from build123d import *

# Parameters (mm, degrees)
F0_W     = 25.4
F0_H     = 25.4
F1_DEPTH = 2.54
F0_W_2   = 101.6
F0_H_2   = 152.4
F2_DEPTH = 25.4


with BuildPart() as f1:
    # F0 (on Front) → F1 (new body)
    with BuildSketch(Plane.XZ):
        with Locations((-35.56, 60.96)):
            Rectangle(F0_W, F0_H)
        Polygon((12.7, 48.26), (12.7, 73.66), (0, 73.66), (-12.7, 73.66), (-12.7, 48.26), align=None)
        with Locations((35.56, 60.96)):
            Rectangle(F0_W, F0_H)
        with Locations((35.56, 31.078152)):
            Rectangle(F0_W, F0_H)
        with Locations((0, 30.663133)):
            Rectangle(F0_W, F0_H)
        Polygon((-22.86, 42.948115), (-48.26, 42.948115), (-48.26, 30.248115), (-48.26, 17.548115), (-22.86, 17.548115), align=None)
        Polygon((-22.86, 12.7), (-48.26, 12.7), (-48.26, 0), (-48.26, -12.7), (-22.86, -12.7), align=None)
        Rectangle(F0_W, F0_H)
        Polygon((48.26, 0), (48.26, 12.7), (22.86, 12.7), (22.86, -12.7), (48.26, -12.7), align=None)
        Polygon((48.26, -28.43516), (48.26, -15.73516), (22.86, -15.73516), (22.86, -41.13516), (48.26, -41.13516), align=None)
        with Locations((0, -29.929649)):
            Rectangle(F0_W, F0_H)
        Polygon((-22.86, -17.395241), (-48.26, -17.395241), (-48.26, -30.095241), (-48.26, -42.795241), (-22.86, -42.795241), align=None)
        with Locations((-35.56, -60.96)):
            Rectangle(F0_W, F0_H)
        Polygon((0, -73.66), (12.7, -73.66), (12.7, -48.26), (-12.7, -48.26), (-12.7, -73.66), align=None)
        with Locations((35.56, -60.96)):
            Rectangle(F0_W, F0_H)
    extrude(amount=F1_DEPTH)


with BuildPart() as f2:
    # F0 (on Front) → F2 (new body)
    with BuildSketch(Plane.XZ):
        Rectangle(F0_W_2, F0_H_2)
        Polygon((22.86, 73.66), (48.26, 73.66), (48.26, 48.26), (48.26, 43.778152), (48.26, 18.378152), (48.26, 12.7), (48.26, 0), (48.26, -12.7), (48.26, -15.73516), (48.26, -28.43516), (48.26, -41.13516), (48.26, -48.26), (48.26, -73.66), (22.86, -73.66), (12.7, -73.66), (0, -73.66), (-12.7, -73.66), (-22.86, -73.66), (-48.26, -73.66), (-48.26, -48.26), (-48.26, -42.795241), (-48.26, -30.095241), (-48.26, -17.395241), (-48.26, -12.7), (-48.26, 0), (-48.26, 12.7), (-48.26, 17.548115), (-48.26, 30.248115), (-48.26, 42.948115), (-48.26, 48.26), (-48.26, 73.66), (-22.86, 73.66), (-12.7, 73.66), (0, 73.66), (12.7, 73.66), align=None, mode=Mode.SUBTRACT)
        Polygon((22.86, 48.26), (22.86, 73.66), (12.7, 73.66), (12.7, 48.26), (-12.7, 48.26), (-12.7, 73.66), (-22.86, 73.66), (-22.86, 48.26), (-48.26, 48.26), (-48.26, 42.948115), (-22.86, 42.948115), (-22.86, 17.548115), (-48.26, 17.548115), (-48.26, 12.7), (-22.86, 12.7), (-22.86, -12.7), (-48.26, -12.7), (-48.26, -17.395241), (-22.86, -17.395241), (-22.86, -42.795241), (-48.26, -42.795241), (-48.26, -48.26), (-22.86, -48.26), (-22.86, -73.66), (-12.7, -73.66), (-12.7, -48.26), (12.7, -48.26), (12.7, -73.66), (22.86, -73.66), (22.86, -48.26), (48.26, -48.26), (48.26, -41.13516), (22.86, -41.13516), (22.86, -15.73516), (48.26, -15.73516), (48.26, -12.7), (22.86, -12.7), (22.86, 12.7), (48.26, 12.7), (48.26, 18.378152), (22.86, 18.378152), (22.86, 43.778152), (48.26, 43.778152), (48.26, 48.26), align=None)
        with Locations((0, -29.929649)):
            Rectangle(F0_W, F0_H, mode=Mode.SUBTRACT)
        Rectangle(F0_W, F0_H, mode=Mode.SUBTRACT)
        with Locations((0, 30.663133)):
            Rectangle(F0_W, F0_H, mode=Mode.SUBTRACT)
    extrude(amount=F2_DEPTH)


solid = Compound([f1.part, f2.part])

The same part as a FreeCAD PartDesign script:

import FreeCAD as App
import Part
import Sketcher

V = App.Vector
Q = App.Units.Quantity

doc = App.newDocument("Part")
params = doc.addObject("Spreadsheet::Sheet", "Params")
for row, (alias, value) in enumerate([
    ("sketch1_width", "1 in"),
    ("pad1_length", "0.1 in"),
    ("sketch2_width", "4 in"),
    ("sketch2_width2", "1 in"),
    ("sketch2_height", "6 in"),
    ("pad2_length", "1 in"),
], start=1):
    params.set(f"A{row}", alias)
    params.set(f"B{row}", "=" + value)
    params.setAlias(f"B{row}", alias)

body = doc.addObject("PartDesign::Body", "Body")
body.AllowCompound = True

# Sketch on XZ plane
sketch1 = body.newObject("Sketcher::SketchObject", "Sketch")
sketch1.AttachmentSupport = (doc.getObject("XZ_Plane"), [""])
sketch1.MapMode = "FlatFace"
sketch1.addGeometry([
    Part.LineSegment(V(-48.26, 73.66, 0), V(-48.26, 48.26, 0)),  # 0
    Part.LineSegment(V(-48.26, 48.26, 0), V(-22.86, 48.26, 0)),  # 1
    Part.LineSegment(V(-22.86, 48.26, 0), V(-22.86, 73.66, 0)),  # 2
    Part.LineSegment(V(-22.86, 73.66, 0), V(-48.26, 73.66, 0)),  # 3
    Part.LineSegment(V(12.7, 48.26, 0), V(12.7, 73.66, 0)),  # 4
    Part.LineSegment(V(12.7, 73.66, 0), V(-12.7, 73.66, 0)),  # 5
    Part.LineSegment(V(-12.7, 73.66, 0), V(-12.7, 48.26, 0)),  # 6
    Part.LineSegment(V(-12.7, 48.26, 0), V(12.7, 48.26, 0)),  # 7
    Part.LineSegment(V(22.86, 73.66, 0), V(22.86, 48.26, 0)),  # 8
    Part.LineSegment(V(22.86, 48.26, 0), V(48.26, 48.26, 0)),  # 9
    Part.LineSegment(V(48.26, 48.26, 0), V(48.26, 73.66, 0)),  # 10
    Part.LineSegment(V(48.26, 73.66, 0), V(22.86, 73.66, 0)),  # 11
    Part.LineSegment(V(22.86, 43.778152, 0), V(22.86, 18.378152, 0)),  # 12
    Part.LineSegment(V(22.86, 18.378152, 0), V(48.26, 18.378152, 0)),  # 13
    Part.LineSegment(V(48.26, 18.378152, 0), V(48.26, 43.778152, 0)),  # 14
    Part.LineSegment(V(48.26, 43.778152, 0), V(22.86, 43.778152, 0)),  # 15
    Part.LineSegment(V(-12.7, 43.363133, 0), V(-12.7, 17.963133, 0)),  # 16
    Part.LineSegment(V(-12.7, 17.963133, 0), V(12.7, 17.963133, 0)),  # 17
    Part.LineSegment(V(12.7, 17.963133, 0), V(12.7, 43.363133, 0)),  # 18
    Part.LineSegment(V(12.7, 43.363133, 0), V(-12.7, 43.363133, 0)),  # 19
    Part.LineSegment(V(-22.86, 42.948115, 0), V(-48.26, 42.948115, 0)),  # 20
    Part.LineSegment(V(-48.26, 42.948115, 0), V(-48.26, 17.548115, 0)),  # 21
    Part.LineSegment(V(-48.26, 17.548115, 0), V(-22.86, 17.548115, 0)),  # 22
    Part.LineSegment(V(-22.86, 17.548115, 0), V(-22.86, 42.948115, 0)),  # 23
    Part.LineSegment(V(-22.86, 12.7, 0), V(-48.26, 12.7, 0)),  # 24
    Part.LineSegment(V(-48.26, 12.7, 0), V(-48.26, -12.7, 0)),  # 25
    Part.LineSegment(V(-48.26, -12.7, 0), V(-22.86, -12.7, 0)),  # 26
    Part.LineSegment(V(-22.86, -12.7, 0), V(-22.86, 12.7, 0)),  # 27
    Part.LineSegment(V(-12.7, 12.7, 0), V(-12.7, -12.7, 0)),  # 28
    Part.LineSegment(V(-12.7, -12.7, 0), V(12.7, -12.7, 0)),  # 29
    Part.LineSegment(V(12.7, -12.7, 0), V(12.7, 12.7, 0)),  # 30
    Part.LineSegment(V(12.7, 12.7, 0), V(-12.7, 12.7, 0)),  # 31
    Part.LineSegment(V(48.26, 12.7, 0), V(22.86, 12.7, 0)),  # 32
    Part.LineSegment(V(22.86, 12.7, 0), V(22.86, -12.7, 0)),  # 33
    Part.LineSegment(V(22.86, -12.7, 0), V(48.26, -12.7, 0)),  # 34
    Part.LineSegment(V(48.26, -12.7, 0), V(48.26, 12.7, 0)),  # 35
    Part.LineSegment(V(48.26, -15.73516, 0), V(22.86, -15.73516, 0)),  # 36
    Part.LineSegment(V(22.86, -15.73516, 0), V(22.86, -41.13516, 0)),  # 37
    Part.LineSegment(V(22.86, -41.13516, 0), V(48.26, -41.13516, 0)),  # 38
    Part.LineSegment(V(48.26, -41.13516, 0), V(48.26, -15.73516, 0)),  # 39
    Part.LineSegment(V(-12.7, -17.229649, 0), V(-12.7, -42.629649, 0)),  # 40
    Part.LineSegment(V(-12.7, -42.629649, 0), V(12.7, -42.629649, 0)),  # 41
    Part.LineSegment(V(12.7, -42.629649, 0), V(12.7, -17.229649, 0)),  # 42
    Part.LineSegment(V(12.7, -17.229649, 0), V(-12.7, -17.229649, 0)),  # 43
    Part.LineSegment(V(-22.86, -17.395241, 0), V(-48.26, -17.395241, 0)),  # 44
    Part.LineSegment(V(-48.26, -17.395241, 0), V(-48.26, -42.795241, 0)),  # 45
    Part.LineSegment(V(-48.26, -42.795241, 0), V(-22.86, -42.795241, 0)),  # 46
    Part.LineSegment(V(-22.86, -42.795241, 0), V(-22.86, -17.395241, 0)),  # 47
    Part.LineSegment(V(-48.26, -48.26, 0), V(-48.26, -73.66, 0)),  # 48
    Part.LineSegment(V(-48.26, -73.66, 0), V(-22.86, -73.66, 0)),  # 49
    Part.LineSegment(V(-22.86, -73.66, 0), V(-22.86, -48.26, 0)),  # 50
    Part.LineSegment(V(-22.86, -48.26, 0), V(-48.26, -48.26, 0)),  # 51
    Part.LineSegment(V(12.7, -73.66, 0), V(12.7, -48.26, 0)),  # 52
    Part.LineSegment(V(12.7, -48.26, 0), V(-12.7, -48.26, 0)),  # 53
    Part.LineSegment(V(-12.7, -48.26, 0), V(-12.7, -73.66, 0)),  # 54
    Part.LineSegment(V(-12.7, -73.66, 0), V(12.7, -73.66, 0)),  # 55
    Part.LineSegment(V(22.86, -48.26, 0), V(22.86, -73.66, 0)),  # 56
    Part.LineSegment(V(22.86, -73.66, 0), V(48.26, -73.66, 0)),  # 57
    Part.LineSegment(V(48.26, -73.66, 0), V(48.26, -48.26, 0)),  # 58
    Part.LineSegment(V(48.26, -48.26, 0), V(22.86, -48.26, 0)),  # 59
], False)
sketch1.addConstraint([
    Sketcher.Constraint("Coincident", 0, 2, 1, 1),
    Sketcher.Constraint("Coincident", 1, 2, 2, 1),
    Sketcher.Constraint("Coincident", 2, 2, 3, 1),
    Sketcher.Constraint("Coincident", 3, 2, 0, 1),
    Sketcher.Constraint("Coincident", 4, 2, 5, 1),
    Sketcher.Constraint("Coincident", 5, 2, 6, 1),
    Sketcher.Constraint("Coincident", 6, 2, 7, 1),
    Sketcher.Constraint("Coincident", 7, 2, 4, 1),
    Sketcher.Constraint("Coincident", 8, 2, 9, 1),
    Sketcher.Constraint("Coincident", 9, 2, 10, 1),
    Sketcher.Constraint("Coincident", 10, 2, 11, 1),
    Sketcher.Constraint("Coincident", 11, 2, 8, 1),
    Sketcher.Constraint("Coincident", 12, 2, 13, 1),
    Sketcher.Constraint("Coincident", 13, 2, 14, 1),
    Sketcher.Constraint("Coincident", 14, 2, 15, 1),
    Sketcher.Constraint("Coincident", 15, 2, 12, 1),
    Sketcher.Constraint("Coincident", 16, 2, 17, 1),
    Sketcher.Constraint("Coincident", 17, 2, 18, 1),
    Sketcher.Constraint("Coincident", 18, 2, 19, 1),
    Sketcher.Constraint("Coincident", 19, 2, 16, 1),
    Sketcher.Constraint("Coincident", 20, 2, 21, 1),
    Sketcher.Constraint("Coincident", 21, 2, 22, 1),
    Sketcher.Constraint("Coincident", 22, 2, 23, 1),
    Sketcher.Constraint("Coincident", 23, 2, 20, 1),
    Sketcher.Constraint("Coincident", 24, 2, 25, 1),
    Sketcher.Constraint("Coincident", 25, 2, 26, 1),
    Sketcher.Constraint("Coincident", 26, 2, 27, 1),
    Sketcher.Constraint("Coincident", 27, 2, 24, 1),
    Sketcher.Constraint("Coincident", 28, 2, 29, 1),
    Sketcher.Constraint("Coincident", 29, 2, 30, 1),
    Sketcher.Constraint("Coincident", 30, 2, 31, 1),
    Sketcher.Constraint("Coincident", 31, 2, 28, 1),
    Sketcher.Constraint("Coincident", 32, 2, 33, 1),
    Sketcher.Constraint("Coincident", 33, 2, 34, 1),
    Sketcher.Constraint("Coincident", 34, 2, 35, 1),
    Sketcher.Constraint("Coincident", 35, 2, 32, 1),
    Sketcher.Constraint("Coincident", 36, 2, 37, 1),
    Sketcher.Constraint("Coincident", 37, 2, 38, 1),
    Sketcher.Constraint("Coincident", 38, 2, 39, 1),
    Sketcher.Constraint("Coincident", 39, 2, 36, 1),
    Sketcher.Constraint("Coincident", 40, 2, 41, 1),
    Sketcher.Constraint("Coincident", 41, 2, 42, 1),
    Sketcher.Constraint("Coincident", 42, 2, 43, 1),
    Sketcher.Constraint("Coincident", 43, 2, 40, 1),
    Sketcher.Constraint("Coincident", 44, 2, 45, 1),
    Sketcher.Constraint("Coincident", 45, 2, 46, 1),
    Sketcher.Constraint("Coincident", 46, 2, 47, 1),
    Sketcher.Constraint("Coincident", 47, 2, 44, 1),
    Sketcher.Constraint("Coincident", 48, 2, 49, 1),
    Sketcher.Constraint("Coincident", 49, 2, 50, 1),
    Sketcher.Constraint("Coincident", 50, 2, 51, 1),
    Sketcher.Constraint("Coincident", 51, 2, 48, 1),
    Sketcher.Constraint("Coincident", 52, 2, 53, 1),
    Sketcher.Constraint("Coincident", 53, 2, 54, 1),
    Sketcher.Constraint("Coincident", 54, 2, 55, 1),
    Sketcher.Constraint("Coincident", 55, 2, 52, 1),
    Sketcher.Constraint("Coincident", 56, 2, 57, 1),
    Sketcher.Constraint("Coincident", 57, 2, 58, 1),
    Sketcher.Constraint("Coincident", 58, 2, 59, 1),
    Sketcher.Constraint("Coincident", 59, 2, 56, 1),
    Sketcher.Constraint("Vertical", 0),
    Sketcher.Constraint("Horizontal", 1),
    Sketcher.Constraint("Vertical", 2),
    Sketcher.Constraint("Horizontal", 3),
    Sketcher.Constraint("Vertical", 4),
    Sketcher.Constraint("Horizontal", 5),
    Sketcher.Constraint("Vertical", 6),
    Sketcher.Constraint("Horizontal", 7),
    Sketcher.Constraint("Vertical", 8),
    Sketcher.Constraint("Horizontal", 9),
    Sketcher.Constraint("Vertical", 10),
    Sketcher.Constraint("Horizontal", 11),
    Sketcher.Constraint("Vertical", 12),
    Sketcher.Constraint("Horizontal", 13),
    Sketcher.Constraint("Vertical", 14),
    Sketcher.Constraint("Horizontal", 15),
    Sketcher.Constraint("Vertical", 16),
    Sketcher.Constraint("Horizontal", 17),
    Sketcher.Constraint("Vertical", 18),
    Sketcher.Constraint("Horizontal", 19),
    Sketcher.Constraint("Horizontal", 20),
    Sketcher.Constraint("Vertical", 21),
    Sketcher.Constraint("Horizontal", 22),
    Sketcher.Constraint("Vertical", 23),
    Sketcher.Constraint("Horizontal", 24),
    Sketcher.Constraint("Vertical", 25),
    Sketcher.Constraint("Horizontal", 26),
    Sketcher.Constraint("Vertical", 27),
    Sketcher.Constraint("Vertical", 28),
    Sketcher.Constraint("Horizontal", 29),
    Sketcher.Constraint("Vertical", 30),
    Sketcher.Constraint("Horizontal", 31),
    Sketcher.Constraint("Horizontal", 32),
    Sketcher.Constraint("Vertical", 33),
    Sketcher.Constraint("Horizontal", 34),
    Sketcher.Constraint("Vertical", 35),
    Sketcher.Constraint("Horizontal", 36),
    Sketcher.Constraint("Vertical", 37),
    Sketcher.Constraint("Horizontal", 38),
    Sketcher.Constraint("Vertical", 39),
    Sketcher.Constraint("Vertical", 40),
    Sketcher.Constraint("Horizontal", 41),
    Sketcher.Constraint("Vertical", 42),
    Sketcher.Constraint("Horizontal", 43),
    Sketcher.Constraint("Horizontal", 44),
    Sketcher.Constraint("Vertical", 45),
    Sketcher.Constraint("Horizontal", 46),
    Sketcher.Constraint("Vertical", 47),
    Sketcher.Constraint("Vertical", 48),
    Sketcher.Constraint("Horizontal", 49),
    Sketcher.Constraint("Vertical", 50),
    Sketcher.Constraint("Horizontal", 51),
    Sketcher.Constraint("Vertical", 52),
    Sketcher.Constraint("Horizontal", 53),
    Sketcher.Constraint("Vertical", 54),
    Sketcher.Constraint("Horizontal", 55),
    Sketcher.Constraint("Vertical", 56),
    Sketcher.Constraint("Horizontal", 57),
    Sketcher.Constraint("Vertical", 58),
    Sketcher.Constraint("Horizontal", 59),
    Sketcher.Constraint("Symmetric", 28, 2, 30, 2, -1, 1),
    Sketcher.Constraint("Symmetric", 26, 2, 32, 2, -1, 1),
    Sketcher.Constraint("Symmetric", 24, 2, 34, 2, -1, 1),
    Sketcher.Constraint("Symmetric", 10, 2, 48, 2, -1, 1),
    Sketcher.Constraint("Symmetric", 8, 2, 50, 2, -1, 1),
    Sketcher.Constraint("Symmetric", 6, 2, 52, 2, -1, 1),
    Sketcher.Constraint("Symmetric", 4, 2, 54, 2, -1, 1),
    Sketcher.Constraint("Symmetric", 2, 2, 56, 2, -1, 1),
    Sketcher.Constraint("Symmetric", 0, 2, 58, 2, -1, 1),
    Sketcher.Constraint("Symmetric", 1, 2, 8, 2, -2),
    Sketcher.Constraint("Symmetric", 3, 2, 10, 2, -2),
    Sketcher.Constraint("Horizontal", 3, 2, 4, 2),
    Sketcher.Constraint("Horizontal", 1, 2, 6, 2),
    Sketcher.Constraint("Horizontal", 26, 2, 28, 2),
    Sketcher.Constraint("Horizontal", 27, 2, 30, 2),
    Sketcher.Constraint("Vertical", 11, 2, 12, 2),
    Sketcher.Constraint("Vertical", 10, 2, 13, 2),
    Sketcher.Constraint("Vertical", 6, 2, 16, 2),
    Sketcher.Constraint("Vertical", 7, 2, 17, 2),
    Sketcher.Constraint("Vertical", 3, 2, 20, 2),
    Sketcher.Constraint("Vertical", 2, 2, 22, 2),
    Sketcher.Constraint("Vertical", 21, 2, 24, 2),
    Sketcher.Constraint("Vertical", 23, 2, 26, 2),
    Sketcher.Constraint("Vertical", 19, 2, 28, 2),
    Sketcher.Constraint("Vertical", 18, 2, 29, 2),
    Sketcher.Constraint("Vertical", 33, 2, 36, 2),
    Sketcher.Constraint("Vertical", 35, 2, 38, 2),
    Sketcher.Constraint("Vertical", 31, 2, 40, 2),
    Sketcher.Constraint("Vertical", 30, 2, 41, 2),
    Sketcher.Constraint("Vertical", 25, 2, 44, 2),
    Sketcher.Constraint("Vertical", 27, 2, 46, 2),
    Sketcher.Constraint("Equal", 3, 5),
    Sketcher.Constraint("Equal", 59, 0),
    Sketcher.Constraint("Equal", 10, 12),
    Sketcher.Constraint("Equal", 14, 16),
    Sketcher.Constraint("Equal", 18, 21),
    Sketcher.Constraint("Equal", 23, 25),
    Sketcher.Constraint("Equal", 35, 37),
    Sketcher.Constraint("Equal", 39, 40),
    Sketcher.Constraint("Equal", 42, 45),
    Sketcher.Constraint("DistanceX", 1, 1, 1, 2, Q("1 in")),
    Sketcher.Constraint("DistanceX", 0, 2, -1, 1, Q("1.9 in")),
    Sketcher.Constraint("DistanceY", -1, 1, 0, 2, Q("1.9 in")),
    Sketcher.Constraint("DistanceY", -1, 1, 12, 2, 18.378152),
    Sketcher.Constraint("DistanceY", 36, 2, -1, 1, 15.73516),
    Sketcher.Constraint("DistanceY", 40, 2, -1, 1, 42.629649),
    Sketcher.Constraint("DistanceY", 44, 2, -1, 1, 17.395241),
    Sketcher.Constraint("DistanceY", 16, 2, 12, 2, 0.415019),
    Sketcher.Constraint("DistanceY", -1, 1, 20, 2, 42.948115),
])
sketch1.setExpression("Constraints[160]", "Params.sketch1_width")
pad1 = body.newObject("PartDesign::Pad", "Pad")
pad1.Profile = sketch1
pad1.setExpression("Length", "Params.pad1_length")
body2 = doc.addObject("PartDesign::Body", "Body001")

# Sketch on XZ plane
sketch2 = body2.newObject("Sketcher::SketchObject", "Sketch001")
sketch2.AttachmentSupport = (doc.getObject("XZ_Plane001"), [""])
sketch2.MapMode = "FlatFace"
sketch2.addGeometry([
    Part.LineSegment(V(-50.8, 76.2, 0), V(-50.8, -76.2, 0)),  # 0
    Part.LineSegment(V(-50.8, -76.2, 0), V(50.8, -76.2, 0)),  # 1
    Part.LineSegment(V(50.8, -76.2, 0), V(50.8, 76.2, 0)),  # 2
    Part.LineSegment(V(50.8, 76.2, 0), V(-50.8, 76.2, 0)),  # 3
    Part.LineSegment(V(-22.86, -73.66, 0), V(-48.26, -73.66, 0)),  # 4
    Part.LineSegment(V(-48.26, -73.66, 0), V(-48.26, -48.26, 0)),  # 5
    Part.LineSegment(V(-48.26, -48.26, 0), V(-22.86, -48.26, 0)),  # 6
    Part.LineSegment(V(-22.86, -48.26, 0), V(-22.86, -73.66, 0)),  # 7
    Part.LineSegment(V(-48.26, -42.795241, 0), V(-48.26, -17.395241, 0)),  # 8
    Part.LineSegment(V(-48.26, -17.395241, 0), V(-22.86, -17.395241, 0)),  # 9
    Part.LineSegment(V(-22.86, -17.395241, 0), V(-22.86, -42.795241, 0)),  # 10
    Part.LineSegment(V(-22.86, -42.795241, 0), V(-48.26, -42.795241, 0)),  # 11
    Part.LineSegment(V(-48.26, -12.7, 0), V(-48.26, 12.7, 0)),  # 12
    Part.LineSegment(V(-48.26, 12.7, 0), V(-22.86, 12.7, 0)),  # 13
    Part.LineSegment(V(-22.86, 12.7, 0), V(-22.86, -12.7, 0)),  # 14
    Part.LineSegment(V(-22.86, -12.7, 0), V(-48.26, -12.7, 0)),  # 15
    Part.LineSegment(V(12.7, -73.66, 0), V(-12.7, -73.66, 0)),  # 16
    Part.LineSegment(V(-12.7, -73.66, 0), V(-12.7, -48.26, 0)),  # 17
    Part.LineSegment(V(-12.7, -48.26, 0), V(12.7, -48.26, 0)),  # 18
    Part.LineSegment(V(12.7, -48.26, 0), V(12.7, -73.66, 0)),  # 19
    Part.LineSegment(V(48.26, -48.26, 0), V(48.26, -73.66, 0)),  # 20
    Part.LineSegment(V(48.26, -73.66, 0), V(22.86, -73.66, 0)),  # 21
    Part.LineSegment(V(22.86, -73.66, 0), V(22.86, -48.26, 0)),  # 22
    Part.LineSegment(V(22.86, -48.26, 0), V(48.26, -48.26, 0)),  # 23
    Part.LineSegment(V(12.7, -42.629649, 0), V(-12.7, -42.629649, 0)),  # 24
    Part.LineSegment(V(-12.7, -42.629649, 0), V(-12.7, -17.229649, 0)),  # 25
    Part.LineSegment(V(-12.7, -17.229649, 0), V(12.7, -17.229649, 0)),  # 26
    Part.LineSegment(V(12.7, -17.229649, 0), V(12.7, -42.629649, 0)),  # 27
    Part.LineSegment(V(12.7, -12.7, 0), V(-12.7, -12.7, 0)),  # 28
    Part.LineSegment(V(-12.7, -12.7, 0), V(-12.7, 12.7, 0)),  # 29
    Part.LineSegment(V(-12.7, 12.7, 0), V(12.7, 12.7, 0)),  # 30
    Part.LineSegment(V(12.7, 12.7, 0), V(12.7, -12.7, 0)),  # 31
    Part.LineSegment(V(48.26, -15.73516, 0), V(48.26, -41.13516, 0)),  # 32
    Part.LineSegment(V(48.26, -41.13516, 0), V(22.86, -41.13516, 0)),  # 33
    Part.LineSegment(V(22.86, -41.13516, 0), V(22.86, -15.73516, 0)),  # 34
    Part.LineSegment(V(22.86, -15.73516, 0), V(48.26, -15.73516, 0)),  # 35
    Part.LineSegment(V(48.26, 12.7, 0), V(48.26, -12.7, 0)),  # 36
    Part.LineSegment(V(48.26, -12.7, 0), V(22.86, -12.7, 0)),  # 37
    Part.LineSegment(V(22.86, -12.7, 0), V(22.86, 12.7, 0)),  # 38
    Part.LineSegment(V(22.86, 12.7, 0), V(48.26, 12.7, 0)),  # 39
    Part.LineSegment(V(-48.26, 17.548115, 0), V(-48.26, 42.948115, 0)),  # 40
    Part.LineSegment(V(-48.26, 42.948115, 0), V(-22.86, 42.948115, 0)),  # 41
    Part.LineSegment(V(-22.86, 42.948115, 0), V(-22.86, 17.548115, 0)),  # 42
    Part.LineSegment(V(-22.86, 17.548115, 0), V(-48.26, 17.548115, 0)),  # 43
    Part.LineSegment(V(-48.26, 73.66, 0), V(-22.86, 73.66, 0)),  # 44
    Part.LineSegment(V(-22.86, 73.66, 0), V(-22.86, 48.26, 0)),  # 45
    Part.LineSegment(V(-22.86, 48.26, 0), V(-48.26, 48.26, 0)),  # 46
    Part.LineSegment(V(-48.26, 48.26, 0), V(-48.26, 73.66, 0)),  # 47
    Part.LineSegment(V(12.7, 17.963133, 0), V(-12.7, 17.963133, 0)),  # 48
    Part.LineSegment(V(-12.7, 17.963133, 0), V(-12.7, 43.363133, 0)),  # 49
    Part.LineSegment(V(-12.7, 43.363133, 0), V(12.7, 43.363133, 0)),  # 50
    Part.LineSegment(V(12.7, 43.363133, 0), V(12.7, 17.963133, 0)),  # 51
    Part.LineSegment(V(48.26, 43.778152, 0), V(48.26, 18.378152, 0)),  # 52
    Part.LineSegment(V(48.26, 18.378152, 0), V(22.86, 18.378152, 0)),  # 53
    Part.LineSegment(V(22.86, 18.378152, 0), V(22.86, 43.778152, 0)),  # 54
    Part.LineSegment(V(22.86, 43.778152, 0), V(48.26, 43.778152, 0)),  # 55
    Part.LineSegment(V(-12.7, 73.66, 0), V(12.7, 73.66, 0)),  # 56
    Part.LineSegment(V(12.7, 73.66, 0), V(12.7, 48.26, 0)),  # 57
    Part.LineSegment(V(12.7, 48.26, 0), V(-12.7, 48.26, 0)),  # 58
    Part.LineSegment(V(-12.7, 48.26, 0), V(-12.7, 73.66, 0)),  # 59
    Part.LineSegment(V(22.86, 73.66, 0), V(48.26, 73.66, 0)),  # 60
    Part.LineSegment(V(48.26, 73.66, 0), V(48.26, 48.26, 0)),  # 61
    Part.LineSegment(V(48.26, 48.26, 0), V(22.86, 48.26, 0)),  # 62
    Part.LineSegment(V(22.86, 48.26, 0), V(22.86, 73.66, 0)),  # 63
], False)
sketch2.addConstraint([
    Sketcher.Constraint("Coincident", 0, 2, 1, 1),
    Sketcher.Constraint("Coincident", 1, 2, 2, 1),
    Sketcher.Constraint("Coincident", 2, 2, 3, 1),
    Sketcher.Constraint("Coincident", 3, 2, 0, 1),
    Sketcher.Constraint("Coincident", 4, 2, 5, 1),
    Sketcher.Constraint("Coincident", 5, 2, 6, 1),
    Sketcher.Constraint("Coincident", 6, 2, 7, 1),
    Sketcher.Constraint("Coincident", 7, 2, 4, 1),
    Sketcher.Constraint("Coincident", 8, 2, 9, 1),
    Sketcher.Constraint("Coincident", 9, 2, 10, 1),
    Sketcher.Constraint("Coincident", 10, 2, 11, 1),
    Sketcher.Constraint("Coincident", 11, 2, 8, 1),
    Sketcher.Constraint("Coincident", 12, 2, 13, 1),
    Sketcher.Constraint("Coincident", 13, 2, 14, 1),
    Sketcher.Constraint("Coincident", 14, 2, 15, 1),
    Sketcher.Constraint("Coincident", 15, 2, 12, 1),
    Sketcher.Constraint("Coincident", 16, 2, 17, 1),
    Sketcher.Constraint("Coincident", 17, 2, 18, 1),
    Sketcher.Constraint("Coincident", 18, 2, 19, 1),
    Sketcher.Constraint("Coincident", 19, 2, 16, 1),
    Sketcher.Constraint("Coincident", 20, 2, 21, 1),
    Sketcher.Constraint("Coincident", 21, 2, 22, 1),
    Sketcher.Constraint("Coincident", 22, 2, 23, 1),
    Sketcher.Constraint("Coincident", 23, 2, 20, 1),
    Sketcher.Constraint("Coincident", 24, 2, 25, 1),
    Sketcher.Constraint("Coincident", 25, 2, 26, 1),
    Sketcher.Constraint("Coincident", 26, 2, 27, 1),
    Sketcher.Constraint("Coincident", 27, 2, 24, 1),
    Sketcher.Constraint("Coincident", 28, 2, 29, 1),
    Sketcher.Constraint("Coincident", 29, 2, 30, 1),
    Sketcher.Constraint("Coincident", 30, 2, 31, 1),
    Sketcher.Constraint("Coincident", 31, 2, 28, 1),
    Sketcher.Constraint("Coincident", 32, 2, 33, 1),
    Sketcher.Constraint("Coincident", 33, 2, 34, 1),
    Sketcher.Constraint("Coincident", 34, 2, 35, 1),
    Sketcher.Constraint("Coincident", 35, 2, 32, 1),
    Sketcher.Constraint("Coincident", 36, 2, 37, 1),
    Sketcher.Constraint("Coincident", 37, 2, 38, 1),
    Sketcher.Constraint("Coincident", 38, 2, 39, 1),
    Sketcher.Constraint("Coincident", 39, 2, 36, 1),
    Sketcher.Constraint("Coincident", 40, 2, 41, 1),
    Sketcher.Constraint("Coincident", 41, 2, 42, 1),
    Sketcher.Constraint("Coincident", 42, 2, 43, 1),
    Sketcher.Constraint("Coincident", 43, 2, 40, 1),
    Sketcher.Constraint("Coincident", 44, 2, 45, 1),
    Sketcher.Constraint("Coincident", 45, 2, 46, 1),
    Sketcher.Constraint("Coincident", 46, 2, 47, 1),
    Sketcher.Constraint("Coincident", 47, 2, 44, 1),
    Sketcher.Constraint("Coincident", 48, 2, 49, 1),
    Sketcher.Constraint("Coincident", 49, 2, 50, 1),
    Sketcher.Constraint("Coincident", 50, 2, 51, 1),
    Sketcher.Constraint("Coincident", 51, 2, 48, 1),
    Sketcher.Constraint("Coincident", 52, 2, 53, 1),
    Sketcher.Constraint("Coincident", 53, 2, 54, 1),
    Sketcher.Constraint("Coincident", 54, 2, 55, 1),
    Sketcher.Constraint("Coincident", 55, 2, 52, 1),
    Sketcher.Constraint("Coincident", 56, 2, 57, 1),
    Sketcher.Constraint("Coincident", 57, 2, 58, 1),
    Sketcher.Constraint("Coincident", 58, 2, 59, 1),
    Sketcher.Constraint("Coincident", 59, 2, 56, 1),
    Sketcher.Constraint("Coincident", 60, 2, 61, 1),
    Sketcher.Constraint("Coincident", 61, 2, 62, 1),
    Sketcher.Constraint("Coincident", 62, 2, 63, 1),
    Sketcher.Constraint("Coincident", 63, 2, 60, 1),
    Sketcher.Constraint("Vertical", 0),
    Sketcher.Constraint("Horizontal", 1),
    Sketcher.Constraint("Vertical", 2),
    Sketcher.Constraint("Horizontal", 3),
    Sketcher.Constraint("Horizontal", 4),
    Sketcher.Constraint("Vertical", 5),
    Sketcher.Constraint("Horizontal", 6),
    Sketcher.Constraint("Vertical", 7),
    Sketcher.Constraint("Vertical", 8),
    Sketcher.Constraint("Horizontal", 9),
    Sketcher.Constraint("Vertical", 10),
    Sketcher.Constraint("Horizontal", 11),
    Sketcher.Constraint("Vertical", 12),
    Sketcher.Constraint("Horizontal", 13),
    Sketcher.Constraint("Vertical", 14),
    Sketcher.Constraint("Horizontal", 15),
    Sketcher.Constraint("Horizontal", 16),
    Sketcher.Constraint("Vertical", 17),
    Sketcher.Constraint("Horizontal", 18),
    Sketcher.Constraint("Vertical", 19),
    Sketcher.Constraint("Vertical", 20),
    Sketcher.Constraint("Horizontal", 21),
    Sketcher.Constraint("Vertical", 22),
    Sketcher.Constraint("Horizontal", 23),
    Sketcher.Constraint("Horizontal", 24),
    Sketcher.Constraint("Vertical", 25),
    Sketcher.Constraint("Horizontal", 26),
    Sketcher.Constraint("Vertical", 27),
    Sketcher.Constraint("Horizontal", 28),
    Sketcher.Constraint("Vertical", 29),
    Sketcher.Constraint("Horizontal", 30),
    Sketcher.Constraint("Vertical", 31),
    Sketcher.Constraint("Vertical", 32),
    Sketcher.Constraint("Horizontal", 33),
    Sketcher.Constraint("Vertical", 34),
    Sketcher.Constraint("Horizontal", 35),
    Sketcher.Constraint("Vertical", 36),
    Sketcher.Constraint("Horizontal", 37),
    Sketcher.Constraint("Vertical", 38),
    Sketcher.Constraint("Horizontal", 39),
    Sketcher.Constraint("Vertical", 40),
    Sketcher.Constraint("Horizontal", 41),
    Sketcher.Constraint("Vertical", 42),
    Sketcher.Constraint("Horizontal", 43),
    Sketcher.Constraint("Horizontal", 44),
    Sketcher.Constraint("Vertical", 45),
    Sketcher.Constraint("Horizontal", 46),
    Sketcher.Constraint("Vertical", 47),
    Sketcher.Constraint("Horizontal", 48),
    Sketcher.Constraint("Vertical", 49),
    Sketcher.Constraint("Horizontal", 50),
    Sketcher.Constraint("Vertical", 51),
    Sketcher.Constraint("Vertical", 52),
    Sketcher.Constraint("Horizontal", 53),
    Sketcher.Constraint("Vertical", 54),
    Sketcher.Constraint("Horizontal", 55),
    Sketcher.Constraint("Horizontal", 56),
    Sketcher.Constraint("Vertical", 57),
    Sketcher.Constraint("Horizontal", 58),
    Sketcher.Constraint("Vertical", 59),
    Sketcher.Constraint("Horizontal", 60),
    Sketcher.Constraint("Vertical", 61),
    Sketcher.Constraint("Horizontal", 62),
    Sketcher.Constraint("Vertical", 63),
    Sketcher.Constraint("Symmetric", 0, 2, 2, 2, -1, 1),
    Sketcher.Constraint("Symmetric", 28, 2, 30, 2, -1, 1),
    Sketcher.Constraint("Symmetric", 12, 2, 36, 2, -1, 1),
    Sketcher.Constraint("Symmetric", 14, 2, 38, 2, -1, 1),
    Sketcher.Constraint("Symmetric", 21, 2, 44, 2, -1, 1),
    Sketcher.Constraint("Symmetric", 23, 2, 46, 2, -1, 1),
    Sketcher.Constraint("Symmetric", 16, 2, 56, 2, -1, 1),
    Sketcher.Constraint("Symmetric", 18, 2, 58, 2, -1, 1),
    Sketcher.Constraint("Symmetric", 4, 2, 60, 2, -1, 1),
    Sketcher.Constraint("Symmetric", 6, 2, 62, 2, -1, 1),
    Sketcher.Constraint("Symmetric", 4, 2, 20, 2, -2),
    Sketcher.Constraint("Symmetric", 6, 2, 22, 2, -2),
    Sketcher.Constraint("Horizontal", 7, 2, 16, 2),
    Sketcher.Constraint("Horizontal", 6, 2, 17, 2),
    Sketcher.Constraint("Horizontal", 15, 2, 28, 2),
    Sketcher.Constraint("Horizontal", 13, 2, 29, 2),
    Sketcher.Constraint("Vertical", 5, 2, 8, 2),
    Sketcher.Constraint("Vertical", 7, 2, 9, 2),
    Sketcher.Constraint("Vertical", 11, 2, 12, 2),
    Sketcher.Constraint("Vertical", 10, 2, 13, 2),
    Sketcher.Constraint("Vertical", 17, 2, 24, 2),
    Sketcher.Constraint("Vertical", 19, 2, 26, 2),
    Sketcher.Constraint("Vertical", 25, 2, 28, 2),
    Sketcher.Constraint("Vertical", 27, 2, 30, 2),
    Sketcher.Constraint("Vertical", 23, 2, 32, 2),
    Sketcher.Constraint("Vertical", 22, 2, 33, 2),
    Sketcher.Constraint("Vertical", 15, 2, 40, 2),
    Sketcher.Constraint("Vertical", 14, 2, 41, 2),
    Sketcher.Constraint("Vertical", 29, 2, 48, 2),
    Sketcher.Constraint("Vertical", 31, 2, 50, 2),
    Sketcher.Constraint("Vertical", 39, 2, 52, 2),
    Sketcher.Constraint("Vertical", 38, 2, 53, 2),
    Sketcher.Constraint("Equal", 15, 16),
    Sketcher.Constraint("Equal", 62, 5),
    Sketcher.Constraint("Equal", 7, 8),
    Sketcher.Constraint("Equal", 10, 12),
    Sketcher.Constraint("Equal", 22, 25),
    Sketcher.Constraint("Equal", 31, 32),
    Sketcher.Constraint("Equal", 38, 40),
    Sketcher.Constraint("Equal", 47, 49),
    Sketcher.Constraint("Equal", 51, 52),
    Sketcher.Constraint("DistanceX", 1, 1, 1, 2, Q("4 in")),
    Sketcher.Constraint("DistanceX", 4, 2, 4, 1, Q("1 in")),
    Sketcher.Constraint("DistanceY", 0, 2, 0, 1, Q("6 in")),
    Sketcher.Constraint("DistanceX", 4, 2, -1, 1, Q("1.9 in")),
    Sketcher.Constraint("DistanceY", 4, 2, -1, 1, Q("2.9 in")),
    Sketcher.Constraint("DistanceY", 8, 2, -1, 1, 17.395241),
    Sketcher.Constraint("DistanceY", 24, 2, -1, 1, 42.629649),
    Sketcher.Constraint("DistanceY", 32, 2, -1, 1, 41.13516),
    Sketcher.Constraint("DistanceY", -1, 1, 52, 2, 18.378152),
    Sketcher.Constraint("DistanceY", -1, 1, 40, 2, 42.948115),
    Sketcher.Constraint("DistanceY", -1, 1, 48, 2, 17.963133),
])
sketch2.setExpression("Constraints[169]", "Params.sketch2_width")
sketch2.setExpression("Constraints[170]", "Params.sketch2_width2")
sketch2.setExpression("Constraints[171]", "Params.sketch2_height")
pad2 = body2.newObject("PartDesign::Pad", "Pad001")
pad2.Profile = sketch2
pad2.setExpression("Length", "Params.pad2_length")

doc.recompute()
